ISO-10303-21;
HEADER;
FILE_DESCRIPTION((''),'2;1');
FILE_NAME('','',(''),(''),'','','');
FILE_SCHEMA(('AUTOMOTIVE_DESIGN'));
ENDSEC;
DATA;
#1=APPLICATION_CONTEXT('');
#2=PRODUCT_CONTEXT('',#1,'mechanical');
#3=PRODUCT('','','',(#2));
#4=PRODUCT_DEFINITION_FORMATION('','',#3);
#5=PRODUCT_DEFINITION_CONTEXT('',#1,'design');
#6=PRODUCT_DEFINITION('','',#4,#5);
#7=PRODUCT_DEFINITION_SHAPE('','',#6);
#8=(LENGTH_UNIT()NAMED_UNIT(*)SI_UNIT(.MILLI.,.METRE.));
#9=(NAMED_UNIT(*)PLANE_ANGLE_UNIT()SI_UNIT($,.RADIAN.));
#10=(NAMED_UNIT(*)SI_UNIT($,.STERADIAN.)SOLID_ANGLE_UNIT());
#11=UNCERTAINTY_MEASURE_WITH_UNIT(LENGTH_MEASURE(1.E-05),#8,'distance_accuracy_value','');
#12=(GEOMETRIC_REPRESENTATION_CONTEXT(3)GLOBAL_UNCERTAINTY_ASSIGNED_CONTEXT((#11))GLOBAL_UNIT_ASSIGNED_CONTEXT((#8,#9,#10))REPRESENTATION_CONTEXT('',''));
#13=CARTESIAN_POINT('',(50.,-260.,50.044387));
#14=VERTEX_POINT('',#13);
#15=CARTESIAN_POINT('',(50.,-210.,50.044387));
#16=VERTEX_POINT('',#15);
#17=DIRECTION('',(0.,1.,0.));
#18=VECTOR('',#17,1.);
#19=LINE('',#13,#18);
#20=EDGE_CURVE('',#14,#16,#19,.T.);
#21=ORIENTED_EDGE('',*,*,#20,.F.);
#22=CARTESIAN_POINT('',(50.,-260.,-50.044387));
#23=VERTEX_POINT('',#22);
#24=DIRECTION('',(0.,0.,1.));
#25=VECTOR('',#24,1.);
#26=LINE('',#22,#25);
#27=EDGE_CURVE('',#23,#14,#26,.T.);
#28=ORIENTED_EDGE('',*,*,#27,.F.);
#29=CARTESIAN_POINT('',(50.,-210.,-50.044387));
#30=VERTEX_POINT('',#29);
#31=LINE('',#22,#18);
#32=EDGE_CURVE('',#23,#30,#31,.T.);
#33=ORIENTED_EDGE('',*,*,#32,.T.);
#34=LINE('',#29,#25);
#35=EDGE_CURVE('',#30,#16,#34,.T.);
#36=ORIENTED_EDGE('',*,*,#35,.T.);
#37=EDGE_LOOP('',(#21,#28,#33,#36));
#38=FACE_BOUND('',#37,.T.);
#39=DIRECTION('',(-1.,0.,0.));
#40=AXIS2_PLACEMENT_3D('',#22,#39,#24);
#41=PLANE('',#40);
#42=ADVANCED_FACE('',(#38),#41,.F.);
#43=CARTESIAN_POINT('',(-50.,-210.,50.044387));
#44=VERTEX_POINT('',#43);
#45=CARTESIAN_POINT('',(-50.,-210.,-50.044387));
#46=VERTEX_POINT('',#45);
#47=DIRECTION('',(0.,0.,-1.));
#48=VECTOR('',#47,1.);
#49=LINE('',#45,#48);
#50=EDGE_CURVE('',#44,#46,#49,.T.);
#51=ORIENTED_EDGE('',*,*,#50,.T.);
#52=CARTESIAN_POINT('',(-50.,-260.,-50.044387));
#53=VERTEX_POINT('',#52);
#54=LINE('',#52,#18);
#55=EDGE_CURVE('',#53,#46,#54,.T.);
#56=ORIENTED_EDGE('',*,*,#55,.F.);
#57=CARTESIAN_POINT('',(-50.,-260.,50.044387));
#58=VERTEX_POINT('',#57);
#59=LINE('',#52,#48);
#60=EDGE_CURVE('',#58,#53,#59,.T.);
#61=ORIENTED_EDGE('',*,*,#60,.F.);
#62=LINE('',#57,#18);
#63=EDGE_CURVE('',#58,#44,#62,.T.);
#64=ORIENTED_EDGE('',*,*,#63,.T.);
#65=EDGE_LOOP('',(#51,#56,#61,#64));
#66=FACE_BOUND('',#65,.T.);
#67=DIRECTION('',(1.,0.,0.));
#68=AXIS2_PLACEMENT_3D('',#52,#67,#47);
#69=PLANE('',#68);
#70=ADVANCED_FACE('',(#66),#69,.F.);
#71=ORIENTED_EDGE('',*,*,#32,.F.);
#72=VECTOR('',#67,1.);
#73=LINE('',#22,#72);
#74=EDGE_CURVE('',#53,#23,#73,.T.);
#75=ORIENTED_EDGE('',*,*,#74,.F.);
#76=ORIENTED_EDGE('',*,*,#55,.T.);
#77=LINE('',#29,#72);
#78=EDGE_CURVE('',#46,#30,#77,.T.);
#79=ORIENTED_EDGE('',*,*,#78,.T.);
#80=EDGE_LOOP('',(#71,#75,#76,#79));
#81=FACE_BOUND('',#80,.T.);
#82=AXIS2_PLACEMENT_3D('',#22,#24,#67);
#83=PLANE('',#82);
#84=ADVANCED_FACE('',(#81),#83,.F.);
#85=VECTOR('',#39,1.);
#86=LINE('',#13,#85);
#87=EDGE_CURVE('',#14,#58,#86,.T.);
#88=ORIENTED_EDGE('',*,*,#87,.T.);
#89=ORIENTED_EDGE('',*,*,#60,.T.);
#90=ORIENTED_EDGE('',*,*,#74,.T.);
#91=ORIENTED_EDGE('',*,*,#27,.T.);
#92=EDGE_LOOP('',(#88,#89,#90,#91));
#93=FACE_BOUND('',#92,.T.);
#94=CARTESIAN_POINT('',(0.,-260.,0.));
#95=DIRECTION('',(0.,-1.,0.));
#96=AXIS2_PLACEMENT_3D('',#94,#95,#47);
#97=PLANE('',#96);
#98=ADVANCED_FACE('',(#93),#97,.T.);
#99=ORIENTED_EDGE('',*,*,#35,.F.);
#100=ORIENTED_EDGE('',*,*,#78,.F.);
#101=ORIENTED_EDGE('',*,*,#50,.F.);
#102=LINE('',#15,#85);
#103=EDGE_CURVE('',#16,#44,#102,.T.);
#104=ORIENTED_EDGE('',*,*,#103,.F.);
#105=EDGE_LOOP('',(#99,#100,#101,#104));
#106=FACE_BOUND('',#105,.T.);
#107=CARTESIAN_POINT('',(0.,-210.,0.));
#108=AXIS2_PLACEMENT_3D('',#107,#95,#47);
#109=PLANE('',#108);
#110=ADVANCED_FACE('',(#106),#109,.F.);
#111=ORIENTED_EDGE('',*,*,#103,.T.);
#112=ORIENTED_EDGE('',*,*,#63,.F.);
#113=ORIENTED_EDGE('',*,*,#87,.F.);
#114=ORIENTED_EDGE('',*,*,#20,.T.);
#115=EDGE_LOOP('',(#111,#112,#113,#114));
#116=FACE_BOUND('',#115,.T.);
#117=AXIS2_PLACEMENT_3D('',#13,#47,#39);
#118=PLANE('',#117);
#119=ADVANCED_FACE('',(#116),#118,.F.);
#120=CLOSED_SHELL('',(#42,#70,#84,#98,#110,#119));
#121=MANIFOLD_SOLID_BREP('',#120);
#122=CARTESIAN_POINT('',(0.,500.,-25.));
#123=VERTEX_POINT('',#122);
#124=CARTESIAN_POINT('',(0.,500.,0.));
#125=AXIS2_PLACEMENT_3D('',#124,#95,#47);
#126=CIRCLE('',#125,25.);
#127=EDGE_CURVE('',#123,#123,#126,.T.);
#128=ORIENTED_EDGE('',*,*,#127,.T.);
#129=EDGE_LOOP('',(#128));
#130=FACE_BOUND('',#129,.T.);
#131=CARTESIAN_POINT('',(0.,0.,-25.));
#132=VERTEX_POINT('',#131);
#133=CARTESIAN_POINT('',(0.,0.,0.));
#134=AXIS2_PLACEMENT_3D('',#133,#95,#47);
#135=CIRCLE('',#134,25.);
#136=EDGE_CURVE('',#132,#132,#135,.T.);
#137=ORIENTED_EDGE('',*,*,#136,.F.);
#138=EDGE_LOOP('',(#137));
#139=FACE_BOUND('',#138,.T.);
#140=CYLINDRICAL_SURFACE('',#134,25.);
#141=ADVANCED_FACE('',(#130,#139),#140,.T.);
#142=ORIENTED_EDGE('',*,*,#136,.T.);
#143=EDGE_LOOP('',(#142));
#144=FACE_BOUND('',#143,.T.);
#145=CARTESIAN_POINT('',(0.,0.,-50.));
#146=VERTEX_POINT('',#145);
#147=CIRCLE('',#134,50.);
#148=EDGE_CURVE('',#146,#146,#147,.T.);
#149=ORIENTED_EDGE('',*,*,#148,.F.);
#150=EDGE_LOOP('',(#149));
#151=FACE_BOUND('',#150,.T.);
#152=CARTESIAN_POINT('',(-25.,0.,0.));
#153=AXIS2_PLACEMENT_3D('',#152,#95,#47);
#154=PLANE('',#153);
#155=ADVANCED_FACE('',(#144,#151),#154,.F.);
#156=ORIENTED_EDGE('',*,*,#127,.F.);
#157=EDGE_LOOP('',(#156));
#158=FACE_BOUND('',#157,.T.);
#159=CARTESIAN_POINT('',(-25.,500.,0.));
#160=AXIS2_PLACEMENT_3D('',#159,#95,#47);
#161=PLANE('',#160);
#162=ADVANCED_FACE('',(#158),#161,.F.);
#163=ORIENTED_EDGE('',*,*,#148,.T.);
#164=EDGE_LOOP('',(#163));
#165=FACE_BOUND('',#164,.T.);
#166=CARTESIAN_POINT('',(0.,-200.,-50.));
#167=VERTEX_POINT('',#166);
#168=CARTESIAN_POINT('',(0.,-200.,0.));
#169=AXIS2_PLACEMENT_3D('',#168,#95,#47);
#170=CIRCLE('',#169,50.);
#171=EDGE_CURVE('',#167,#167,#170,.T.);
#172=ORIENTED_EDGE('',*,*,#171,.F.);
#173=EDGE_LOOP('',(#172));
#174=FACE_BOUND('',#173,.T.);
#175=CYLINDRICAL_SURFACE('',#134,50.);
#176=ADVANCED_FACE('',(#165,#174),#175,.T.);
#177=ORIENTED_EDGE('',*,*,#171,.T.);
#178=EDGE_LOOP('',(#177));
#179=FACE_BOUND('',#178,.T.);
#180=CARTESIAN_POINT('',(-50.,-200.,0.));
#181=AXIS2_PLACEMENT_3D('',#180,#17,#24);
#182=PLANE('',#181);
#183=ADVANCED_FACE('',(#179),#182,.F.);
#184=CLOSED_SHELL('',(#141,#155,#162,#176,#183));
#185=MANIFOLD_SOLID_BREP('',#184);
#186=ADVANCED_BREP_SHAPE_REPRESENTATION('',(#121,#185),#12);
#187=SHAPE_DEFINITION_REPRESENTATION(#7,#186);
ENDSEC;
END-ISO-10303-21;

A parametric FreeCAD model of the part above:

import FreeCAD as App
import Part
import Sketcher
from FreeCAD import Vector

doc = App.newDocument("Part")
body = doc.addObject("PartDesign::Body", "Body")

sketch1 = body.newObject("Sketcher::SketchObject", "Sketch")
sketch1.AttachmentSupport = (doc.getObject("XY_Plane"), [""])
sketch1.MapMode = "FlatFace"
sketch1.addGeometry([
    Part.LineSegment(Vector(-25, 500, 0), Vector(-25, 0, 0)),
    Part.LineSegment(Vector(-25, 0, 0), Vector(-50, 0, 0)),
    Part.LineSegment(Vector(-50, 0, 0), Vector(-50, -200, 0)),
    Part.LineSegment(Vector(-50, -200, 0), Vector(0, -200, 0)),
    Part.LineSegment(Vector(0, -200, 0), Vector(0, 500, 0)),
    Part.LineSegment(Vector(0, 500, 0), Vector(-25, 500, 0)),
], False)
sketch1.addConstraint([
    Sketcher.Constraint("Coincident", 0, 2, 1, 1),
    Sketcher.Constraint("Coincident", 1, 2, 2, 1),
    Sketcher.Constraint("Coincident", 2, 2, 3, 1),
    Sketcher.Constraint("Coincident", 3, 2, 4, 1),
    Sketcher.Constraint("Coincident", 4, 2, 5, 1),
    Sketcher.Constraint("Coincident", 5, 2, 0, 1),
    Sketcher.Constraint("Vertical", 0),
    Sketcher.Constraint("Horizontal", 1),
    Sketcher.Constraint("Vertical", 2),
    Sketcher.Constraint("Horizontal", 3),
    Sketcher.Constraint("Vertical", 4),
    Sketcher.Constraint("Horizontal", 5),
    Sketcher.Constraint("PointOnObject", 0, 2, -1),
    Sketcher.Constraint("PointOnObject", 3, 2, -2),
    Sketcher.Constraint("Equal", 1, 5),
    Sketcher.Constraint("DistanceX", 1, 2, 1, 1, 25.0),
    Sketcher.Constraint("DistanceY", 0, 2, 0, 1, 500.0),
    Sketcher.Constraint("DistanceY", 2, 2, 2, 1, 200.0),
])
revolution = body.newObject("PartDesign::Revolution", "Revolution")
revolution.Profile = sketch1
revolution.ReferenceAxis = (sketch1, ["V_Axis"])
revolution.Angle = 360
body2 = doc.addObject("PartDesign::Body", "Body001")

sketch2 = body2.newObject("Sketcher::SketchObject", "Sketch001")
sketch2.AttachmentSupport = (doc.getObject("XZ_Plane001"), [""])
sketch2.MapMode = "FlatFace"
sketch2.AttachmentOffset = App.Placement(Vector(0, 0, 210), App.Rotation())
sketch2.addGeometry([
    Part.LineSegment(Vector(50, -50.044387, 0), Vector(50, 50.044387, 0)),
    Part.LineSegment(Vector(50, 50.044387, 0), Vector(-50, 50.044387, 0)),
    Part.LineSegment(Vector(-50, 50.044387, 0), Vector(-50, -50.044387, 0)),
    Part.LineSegment(Vector(-50, -50.044387, 0), Vector(50, -50.044387, 0)),
], False)
sketch2.addConstraint([
    Sketcher.Constraint("Coincident", 0, 2, 1, 1),
    Sketcher.Constraint("Coincident", 1, 2, 2, 1),
    Sketcher.Constraint("Coincident", 2, 2, 3, 1),
    Sketcher.Constraint("Coincident", 3, 2, 0, 1),
    Sketcher.Constraint("Vertical", 0),
    Sketcher.Constraint("Horizontal", 1),
    Sketcher.Constraint("Vertical", 2),
    Sketcher.Constraint("Horizontal", 3),
    Sketcher.Constraint("Symmetric", 0, 2, 2, 2, -1, 1),
    Sketcher.Constraint("DistanceX", 1, 2, 1, 1, 100.0),
    Sketcher.Constraint("DistanceY", 0, 1, 0, 2, 100.088774),
])
pad1 = body2.newObject("PartDesign::Pad", "Pad")
pad1.Profile = sketch2
pad1.Length = 50

doc.recompute()
